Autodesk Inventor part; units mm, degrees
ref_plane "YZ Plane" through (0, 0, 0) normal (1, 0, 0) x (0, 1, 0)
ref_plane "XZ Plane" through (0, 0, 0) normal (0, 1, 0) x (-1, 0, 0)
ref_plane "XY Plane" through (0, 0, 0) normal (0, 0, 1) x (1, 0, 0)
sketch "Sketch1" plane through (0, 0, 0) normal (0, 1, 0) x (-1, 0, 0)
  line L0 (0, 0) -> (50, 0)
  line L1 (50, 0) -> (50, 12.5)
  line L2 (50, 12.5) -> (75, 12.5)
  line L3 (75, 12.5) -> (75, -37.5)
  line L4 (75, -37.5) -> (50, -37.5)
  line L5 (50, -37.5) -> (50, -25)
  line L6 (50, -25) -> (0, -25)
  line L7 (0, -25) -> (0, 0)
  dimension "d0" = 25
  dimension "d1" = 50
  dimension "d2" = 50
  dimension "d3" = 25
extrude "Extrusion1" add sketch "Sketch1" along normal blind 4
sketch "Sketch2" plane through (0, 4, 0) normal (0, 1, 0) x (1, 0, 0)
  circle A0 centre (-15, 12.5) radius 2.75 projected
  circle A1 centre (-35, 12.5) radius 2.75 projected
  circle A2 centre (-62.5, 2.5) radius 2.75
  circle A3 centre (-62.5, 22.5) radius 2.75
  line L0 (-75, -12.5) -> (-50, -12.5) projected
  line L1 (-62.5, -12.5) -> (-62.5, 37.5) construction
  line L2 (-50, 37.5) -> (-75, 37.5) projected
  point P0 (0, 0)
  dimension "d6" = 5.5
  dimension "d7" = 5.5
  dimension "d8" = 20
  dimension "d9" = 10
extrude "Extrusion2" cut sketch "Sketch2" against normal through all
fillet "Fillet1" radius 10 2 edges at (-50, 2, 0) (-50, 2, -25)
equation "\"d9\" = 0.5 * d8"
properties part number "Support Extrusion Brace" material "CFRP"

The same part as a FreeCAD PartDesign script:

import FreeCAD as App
import Part
import Sketcher


def edges_at(feature, points):
    """Names of the edges that pass closest to the given points."""
    edges = feature.Shape.Edges
    near = lambda p: min(range(len(edges)), key=lambda i: edges[i].distToShape(Part.Vertex(*p))[0])
    return sorted({f"Edge{near(p) + 1}" for p in points})


def add_polygon(sketch, points):
    """Adds a closed chain of lines whose ends are joined by coincident constraints."""
    first, n = sketch.GeometryCount, len(points)
    for a, b in zip(points, points[1:] + points[:1]):
        sketch.addGeometry(Part.LineSegment(App.Vector(*a, 0), App.Vector(*b, 0)), False)
    for i in range(n):
        sketch.addConstraint(Sketcher.Constraint("Coincident", first + i, 2, first + (i + 1) % n, 1))

doc = App.newDocument("Part")
body = doc.addObject("PartDesign::Body", "Body")

# Sketch on XZ plane
sketch1 = body.newObject("Sketcher::SketchObject", "Sketch")
sketch1.AttachmentSupport = (doc.getObject("XZ_Plane"), [""])
sketch1.MapMode = "FlatFace"
add_polygon(sketch1, [(-50, 0), (0, 0), (0, -25), (-50, -25), (-50, -37.5), (-75, -37.5), (-75, 12.5), (-50, 12.5)])  # lines 0-7
sketch1.addConstraint([
    Sketcher.Constraint("Horizontal", 0),
    Sketcher.Constraint("Vertical", 1),
    Sketcher.Constraint("Horizontal", 2),
    Sketcher.Constraint("Vertical", 3),
    Sketcher.Constraint("Horizontal", 4),
    Sketcher.Constraint("Vertical", 5),
    Sketcher.Constraint("Horizontal", 6),
    Sketcher.Constraint("Vertical", 7),
    Sketcher.Constraint("Coincident", 0, 2, -1, 1),
    Sketcher.Constraint("Vertical", 3, 2, 6, 2),
    Sketcher.Constraint("Equal", 6, 1),
    Sketcher.Constraint("Equal", 2, 5),
    Sketcher.Constraint("Equal", 3, 7),
    Sketcher.Constraint("DistanceX", 0, 1, 0, 2, 50.0),
    Sketcher.Constraint("DistanceX", 4, 2, 4, 1, 25.0),
])
pad1 = body.newObject("PartDesign::Pad", "Pad")
pad1.Profile = sketch1
pad1.Length = 4
pad1.Reversed = True

# Sketch on XZ plane
sketch2 = body.newObject("Sketcher::SketchObject", "Sketch001")
sketch2.AttachmentSupport = (doc.getObject("XZ_Plane"), [""])
sketch2.MapMode = "FlatFace"
sketch2.AttachmentOffset = App.Placement(App.Vector(0, 0, -4), App.Rotation())
sketch2.addGeometry([
    Part.Circle(App.Vector(-15, -12.5, 0), App.Vector(0, 0, 1), 2.75),
    Part.Circle(App.Vector(-35, -12.5, 0), App.Vector(0, 0, 1), 2.75),
    Part.Circle(App.Vector(-62.5, -2.5, 0), App.Vector(0, 0, 1), 2.75),
    Part.Circle(App.Vector(-62.5, -22.5, 0), App.Vector(0, 0, 1), 2.75),
], False)
sketch2.addConstraint([
    Sketcher.Constraint("Equal", 0, 1),
    Sketcher.Constraint("Equal", 1, 2),
    Sketcher.Constraint("Equal", 2, 3),
    Sketcher.Constraint("Horizontal", 0, 3, 1, 3),
    Sketcher.Constraint("Vertical", 2, 3, 3, 3),
    Sketcher.Constraint("Diameter", 0, 5.5),
    Sketcher.Constraint("DistanceX", 1, 3, 0, 3, 20.0),
    Sketcher.Constraint("DistanceY", 1, 3, 2, 3, 10.0),
    Sketcher.Constraint("DistanceY", 3, 3, 2, 3, 20.0),
    Sketcher.Constraint("DistanceX", 0, 3, -1, 1, 15.0),
    Sketcher.Constraint("DistanceY", 0, 3, -1, 1, 12.5),
    Sketcher.Constraint("DistanceX", 2, 3, -1, 1, 62.5),
])
pocket1 = body.newObject("PartDesign::Pocket", "Pocket")
pocket1.Profile = sketch2
pocket1.Type = "ThroughAll"
pocket1.Reversed = True
doc.recompute()

fillet = body.newObject("PartDesign::Fillet", "Fillet")
fillet.Base = (pocket1, edges_at(pocket1, [(-50, 2, 0), (-50, 2, -25)]))
fillet.Radius = 10

doc.recompute()
